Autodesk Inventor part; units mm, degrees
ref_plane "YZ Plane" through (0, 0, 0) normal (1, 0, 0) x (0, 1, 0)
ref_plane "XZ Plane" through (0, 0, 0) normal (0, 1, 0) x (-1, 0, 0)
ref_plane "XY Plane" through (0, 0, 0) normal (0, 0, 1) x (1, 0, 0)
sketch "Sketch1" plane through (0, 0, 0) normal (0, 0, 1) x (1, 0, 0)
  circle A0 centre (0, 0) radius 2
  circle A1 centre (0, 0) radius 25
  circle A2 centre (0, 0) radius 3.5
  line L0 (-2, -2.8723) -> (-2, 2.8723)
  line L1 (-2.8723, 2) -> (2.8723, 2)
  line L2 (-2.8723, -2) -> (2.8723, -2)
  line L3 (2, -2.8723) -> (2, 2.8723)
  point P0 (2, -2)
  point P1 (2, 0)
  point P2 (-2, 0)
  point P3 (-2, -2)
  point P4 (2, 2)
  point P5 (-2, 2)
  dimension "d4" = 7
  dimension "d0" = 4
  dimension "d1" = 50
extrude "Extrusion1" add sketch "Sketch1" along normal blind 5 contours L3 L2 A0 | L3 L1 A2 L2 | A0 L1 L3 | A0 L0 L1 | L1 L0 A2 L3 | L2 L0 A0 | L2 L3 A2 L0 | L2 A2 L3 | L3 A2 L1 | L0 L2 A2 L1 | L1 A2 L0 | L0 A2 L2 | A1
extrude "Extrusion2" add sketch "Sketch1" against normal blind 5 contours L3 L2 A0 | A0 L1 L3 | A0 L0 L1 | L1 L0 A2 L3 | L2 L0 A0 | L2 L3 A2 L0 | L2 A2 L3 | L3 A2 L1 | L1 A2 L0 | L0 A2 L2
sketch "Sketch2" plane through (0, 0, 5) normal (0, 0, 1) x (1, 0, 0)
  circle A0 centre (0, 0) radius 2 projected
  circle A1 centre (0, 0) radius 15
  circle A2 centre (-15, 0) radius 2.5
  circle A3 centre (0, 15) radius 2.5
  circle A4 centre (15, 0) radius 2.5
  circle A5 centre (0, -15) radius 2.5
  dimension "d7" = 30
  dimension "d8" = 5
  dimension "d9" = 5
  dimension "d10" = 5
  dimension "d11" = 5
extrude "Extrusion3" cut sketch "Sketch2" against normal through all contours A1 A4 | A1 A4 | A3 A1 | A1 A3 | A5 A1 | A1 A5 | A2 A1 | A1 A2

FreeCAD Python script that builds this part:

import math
import FreeCAD as App
import Part
import Sketcher

V = App.Vector

doc = App.newDocument("Part")
body = doc.addObject("PartDesign::Body", "Body")

sketch1 = body.newObject("Sketcher::SketchObject", "Sketch")
sketch1.AttachmentSupport = (doc.getObject("XY_Plane"), [""])
sketch1.MapMode = "FlatFace"
sketch1.addGeometry([
    Part.Circle(V(0, 0, 0), V(0, 0, 1), 25),
    Part.Circle(V(0, 0, 0), V(0, 0, 1), 2),
], False)
sketch1.addConstraint([
    Sketcher.Constraint("Coincident", 0, 3, -1, 1),
    Sketcher.Constraint("Coincident", 1, 3, -1, 1),
    Sketcher.Constraint("Diameter", 0, 50.0),
    Sketcher.Constraint("Diameter", 1, 4.0),
])
pad1 = body.newObject("PartDesign::Pad", "Pad")
pad1.Profile = sketch1
pad1.Length = 5

sketch2 = body.newObject("Sketcher::SketchObject", "Sketch001")
sketch2.AttachmentSupport = (doc.getObject("XY_Plane"), [""])
sketch2.MapMode = "FlatFace"
sketch2.addGeometry([
    Part.LineSegment(V(2, -2, 0), V(2, 0, 0)),
    Part.ArcOfCircle(Part.Circle(V(0, 0, 0), V(0, 0, 1), 2), math.radians(180), math.radians(360)),
    Part.LineSegment(V(-2, 0, 0), V(-2, -2, 0)),
    Part.LineSegment(V(-2, -2, 0), V(-2.8723, -2, 0)),
    Part.ArcOfCircle(Part.Circle(V(0, 0, 0), V(0, 0, 1), 3.5), math.radians(-145.15027), math.radians(-34.84973)),
    Part.LineSegment(V(2.8723, -2, 0), V(2, -2, 0)),
    Part.LineSegment(V(2, 0, 0), V(2, 2, 0)),
    Part.LineSegment(V(2, 2, 0), V(2.8723, 2, 0)),
    Part.ArcOfCircle(Part.Circle(V(0, 0, 0), V(0, 0, 1), 3.5), math.radians(34.84973), math.radians(145.15027)),
    Part.LineSegment(V(-2.8723, 2, 0), V(-2, 2, 0)),
    Part.LineSegment(V(-2, 2, 0), V(-2, 0, 0)),
    Part.ArcOfCircle(Part.Circle(V(0, 0, 0), V(0, 0, 1), 2), math.radians(0), math.radians(180)),
], False)
sketch2.addConstraint([
    Sketcher.Constraint("Tangent", 0, 2, 1, 2),
    Sketcher.Constraint("Tangent", 1, 1, 2, 1),
    Sketcher.Constraint("Coincident", 2, 2, 3, 1),
    Sketcher.Constraint("Coincident", 3, 2, 4, 1),
    Sketcher.Constraint("Coincident", 4, 2, 5, 1),
    Sketcher.Constraint("Coincident", 5, 2, 0, 1),
    Sketcher.Constraint("Coincident", 6, 2, 7, 1),
    Sketcher.Constraint("Coincident", 7, 2, 8, 1),
    Sketcher.Constraint("Coincident", 8, 2, 9, 1),
    Sketcher.Constraint("Coincident", 9, 2, 10, 1),
    Sketcher.Constraint("Tangent", 10, 2, 11, 2),
    Sketcher.Constraint("Tangent", 11, 1, 6, 1),
    Sketcher.Constraint("Vertical", 0),
    Sketcher.Constraint("Vertical", 2),
    Sketcher.Constraint("Horizontal", 3),
    Sketcher.Constraint("Horizontal", 5),
    Sketcher.Constraint("Vertical", 6),
    Sketcher.Constraint("Horizontal", 7),
    Sketcher.Constraint("Horizontal", 9),
    Sketcher.Constraint("Vertical", 10),
    Sketcher.Constraint("Coincident", 1, 3, -1, 1),
    Sketcher.Constraint("Coincident", 4, 3, -1, 1),
    Sketcher.Constraint("Coincident", 8, 3, -1, 1),
    Sketcher.Constraint("Coincident", 11, 3, -1, 1),
    Sketcher.Constraint("Equal", 4, 8),
    Sketcher.Constraint("Equal", 1, 11),
    Sketcher.Constraint("Horizontal", 3, 2, 4, 2),
    Sketcher.Constraint("Horizontal", 7, 2, 8, 2),
    Sketcher.Constraint("Vertical", 4, 2, 7, 2),
    Sketcher.Constraint("Radius", 1, 2.0),
    Sketcher.Constraint("Radius", 4, 3.5),
    Sketcher.Constraint("DistanceY", 0, 1, 0, 2, 2.0),
])
pad2 = body.newObject("PartDesign::Pad", "Pad001")
pad2.Profile = sketch2
pad2.Length = 5
pad2.Reversed = True

sketch3 = body.newObject("Sketcher::SketchObject", "Sketch002")
sketch3.AttachmentSupport = (doc.getObject("XY_Plane"), [""])
sketch3.MapMode = "FlatFace"
sketch3.AttachmentOffset = App.Placement(V(0, 0, 5), App.Rotation())
sketch3.addGeometry([
    Part.Circle(V(15, 0, 0), V(0, 0, 1), 2.5),
    Part.Circle(V(0, 15, 0), V(0, 0, 1), 2.5),
    Part.Circle(V(0, -15, 0), V(0, 0, 1), 2.5),
    Part.Circle(V(-15, 0, 0), V(0, 0, 1), 2.5),
], False)
sketch3.addConstraint([
    Sketcher.Constraint("Equal", 0, 1),
    Sketcher.Constraint("Equal", 1, 2),
    Sketcher.Constraint("Equal", 2, 3),
    Sketcher.Constraint("Symmetric", 1, 3, 2, 3, -1, 1),
    Sketcher.Constraint("Symmetric", 0, 3, 3, 3, -1, 1),
    Sketcher.Constraint("PointOnObject", 0, 3, -1),
    Sketcher.Constraint("PointOnObject", 1, 3, -2),
    Sketcher.Constraint("Diameter", 0, 5.0),
    Sketcher.Constraint("DistanceY", 2, 3, 1, 3, 30.0),
    Sketcher.Constraint("DistanceX", 3, 3, 0, 3, 30.0),
])
pocket1 = body.newObject("PartDesign::Pocket", "Pocket")
pocket1.Profile = sketch3
pocket1.Type = "ThroughAll"

doc.recompute()
